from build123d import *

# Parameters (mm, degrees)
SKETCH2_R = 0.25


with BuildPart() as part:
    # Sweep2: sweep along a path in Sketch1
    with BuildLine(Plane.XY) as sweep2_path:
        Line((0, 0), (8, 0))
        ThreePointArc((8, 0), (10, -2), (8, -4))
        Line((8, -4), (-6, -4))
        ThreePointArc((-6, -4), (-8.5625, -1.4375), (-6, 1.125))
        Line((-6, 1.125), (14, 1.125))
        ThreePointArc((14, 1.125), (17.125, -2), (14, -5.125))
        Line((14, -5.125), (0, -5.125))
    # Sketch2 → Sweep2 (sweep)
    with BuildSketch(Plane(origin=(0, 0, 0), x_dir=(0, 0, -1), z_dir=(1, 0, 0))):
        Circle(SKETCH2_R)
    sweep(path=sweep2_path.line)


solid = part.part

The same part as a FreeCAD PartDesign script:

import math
import FreeCAD as App
import Part
import Sketcher
from FreeCAD import Vector
Q = App.Units.Quantity

doc = App.newDocument("Part")
body = doc.addObject("PartDesign::Body", "Body")

sketch1 = body.newObject("Sketcher::SketchObject", "Sketch")
sketch1.AttachmentSupport = (doc.getObject("YZ_Plane"), [""])
sketch1.MapMode = "FlatFace"
sketch1.addGeometry(Part.Circle(Vector(0, 0, 0), Vector(0, 0, 1), 0.25), False)
sketch1.addConstraint(Sketcher.Constraint("Coincident", 0, 3, -1, 1))
sketch1.addConstraint(Sketcher.Constraint("Diameter", 0, Q("0.5 mm")))

sketch2 = body.newObject("Sketcher::SketchObject", "Sketch001")
sketch2.AttachmentSupport = (doc.getObject("XY_Plane"), [""])
sketch2.MapMode = "FlatFace"
sketch2.addGeometry(Part.LineSegment(Vector(0, 0, 0), Vector(8, 0, 0)), False)
sketch2.addGeometry(Part.ArcOfCircle(Part.Circle(Vector(8, -2, 0), Vector(0, 0, 1), 2), math.radians(-90), math.radians(90)), False)
sketch2.addGeometry(Part.LineSegment(Vector(8, -4, 0), Vector(-6, -4, 0)), False)
sketch2.addGeometry(Part.ArcOfCircle(Part.Circle(Vector(-6, -1.4, 0), Vector(0, 0, 1), 2.6), math.radians(90), math.radians(270)), False)
sketch2.addGeometry(Part.LineSegment(Vector(-6, 1.1, 0), Vector(14, 1.1, 0)), False)
sketch2.addGeometry(Part.ArcOfCircle(Part.Circle(Vector(14, -2, 0), Vector(0, 0, 1), 3.1), math.radians(-90), math.radians(90)), False)
sketch2.addGeometry(Part.LineSegment(Vector(14, -5.1, 0), Vector(0, -5.1, 0)), False)
sketch2.addConstraint(Sketcher.Constraint("Tangent", 0, 2, 1, 2))
sketch2.addConstraint(Sketcher.Constraint("Tangent", 1, 1, 2, 1))
sketch2.addConstraint(Sketcher.Constraint("Tangent", 2, 2, 3, 2))
sketch2.addConstraint(Sketcher.Constraint("Tangent", 3, 1, 4, 1))
sketch2.addConstraint(Sketcher.Constraint("Tangent", 4, 2, 5, 2))
sketch2.addConstraint(Sketcher.Constraint("Tangent", 5, 1, 6, 1))
sketch2.addConstraint(Sketcher.Constraint("Horizontal", 0))
sketch2.addConstraint(Sketcher.Constraint("Horizontal", 2))
sketch2.addConstraint(Sketcher.Constraint("Horizontal", 4))
sketch2.addConstraint(Sketcher.Constraint("Horizontal", 6))
sketch2.addConstraint(Sketcher.Constraint("Coincident", 0, 1, -1, 1))
sketch2.addConstraint(Sketcher.Constraint("PointOnObject", 6, 2, -2))
sketch2.addConstraint(Sketcher.Constraint("Horizontal", 1, 3, 5, 3))
sketch2.addConstraint(Sketcher.Constraint("Equal", 2, 6))
sketch2.addConstraint(Sketcher.Constraint("Radius", 1, Q("2 mm")))
sketch2.addConstraint(Sketcher.Constraint("DistanceX", 0, 1, 0, 2, Q("8 mm")))
sketch2.addConstraint(Sketcher.Constraint("DistanceX", 2, 2, 2, 1, Q("14 mm")))
sketch2.addConstraint(Sketcher.Constraint("Radius", 5, Q("3.125 mm")))
doc.recompute()

additivepipe = body.newObject("PartDesign::AdditivePipe", "AdditivePipe")
additivepipe.Profile = sketch1
additivepipe.Spine = (sketch2, ["Edge1", "Edge2", "Edge3", "Edge4", "Edge5", "Edge6", "Edge7"])

doc.recompute()
